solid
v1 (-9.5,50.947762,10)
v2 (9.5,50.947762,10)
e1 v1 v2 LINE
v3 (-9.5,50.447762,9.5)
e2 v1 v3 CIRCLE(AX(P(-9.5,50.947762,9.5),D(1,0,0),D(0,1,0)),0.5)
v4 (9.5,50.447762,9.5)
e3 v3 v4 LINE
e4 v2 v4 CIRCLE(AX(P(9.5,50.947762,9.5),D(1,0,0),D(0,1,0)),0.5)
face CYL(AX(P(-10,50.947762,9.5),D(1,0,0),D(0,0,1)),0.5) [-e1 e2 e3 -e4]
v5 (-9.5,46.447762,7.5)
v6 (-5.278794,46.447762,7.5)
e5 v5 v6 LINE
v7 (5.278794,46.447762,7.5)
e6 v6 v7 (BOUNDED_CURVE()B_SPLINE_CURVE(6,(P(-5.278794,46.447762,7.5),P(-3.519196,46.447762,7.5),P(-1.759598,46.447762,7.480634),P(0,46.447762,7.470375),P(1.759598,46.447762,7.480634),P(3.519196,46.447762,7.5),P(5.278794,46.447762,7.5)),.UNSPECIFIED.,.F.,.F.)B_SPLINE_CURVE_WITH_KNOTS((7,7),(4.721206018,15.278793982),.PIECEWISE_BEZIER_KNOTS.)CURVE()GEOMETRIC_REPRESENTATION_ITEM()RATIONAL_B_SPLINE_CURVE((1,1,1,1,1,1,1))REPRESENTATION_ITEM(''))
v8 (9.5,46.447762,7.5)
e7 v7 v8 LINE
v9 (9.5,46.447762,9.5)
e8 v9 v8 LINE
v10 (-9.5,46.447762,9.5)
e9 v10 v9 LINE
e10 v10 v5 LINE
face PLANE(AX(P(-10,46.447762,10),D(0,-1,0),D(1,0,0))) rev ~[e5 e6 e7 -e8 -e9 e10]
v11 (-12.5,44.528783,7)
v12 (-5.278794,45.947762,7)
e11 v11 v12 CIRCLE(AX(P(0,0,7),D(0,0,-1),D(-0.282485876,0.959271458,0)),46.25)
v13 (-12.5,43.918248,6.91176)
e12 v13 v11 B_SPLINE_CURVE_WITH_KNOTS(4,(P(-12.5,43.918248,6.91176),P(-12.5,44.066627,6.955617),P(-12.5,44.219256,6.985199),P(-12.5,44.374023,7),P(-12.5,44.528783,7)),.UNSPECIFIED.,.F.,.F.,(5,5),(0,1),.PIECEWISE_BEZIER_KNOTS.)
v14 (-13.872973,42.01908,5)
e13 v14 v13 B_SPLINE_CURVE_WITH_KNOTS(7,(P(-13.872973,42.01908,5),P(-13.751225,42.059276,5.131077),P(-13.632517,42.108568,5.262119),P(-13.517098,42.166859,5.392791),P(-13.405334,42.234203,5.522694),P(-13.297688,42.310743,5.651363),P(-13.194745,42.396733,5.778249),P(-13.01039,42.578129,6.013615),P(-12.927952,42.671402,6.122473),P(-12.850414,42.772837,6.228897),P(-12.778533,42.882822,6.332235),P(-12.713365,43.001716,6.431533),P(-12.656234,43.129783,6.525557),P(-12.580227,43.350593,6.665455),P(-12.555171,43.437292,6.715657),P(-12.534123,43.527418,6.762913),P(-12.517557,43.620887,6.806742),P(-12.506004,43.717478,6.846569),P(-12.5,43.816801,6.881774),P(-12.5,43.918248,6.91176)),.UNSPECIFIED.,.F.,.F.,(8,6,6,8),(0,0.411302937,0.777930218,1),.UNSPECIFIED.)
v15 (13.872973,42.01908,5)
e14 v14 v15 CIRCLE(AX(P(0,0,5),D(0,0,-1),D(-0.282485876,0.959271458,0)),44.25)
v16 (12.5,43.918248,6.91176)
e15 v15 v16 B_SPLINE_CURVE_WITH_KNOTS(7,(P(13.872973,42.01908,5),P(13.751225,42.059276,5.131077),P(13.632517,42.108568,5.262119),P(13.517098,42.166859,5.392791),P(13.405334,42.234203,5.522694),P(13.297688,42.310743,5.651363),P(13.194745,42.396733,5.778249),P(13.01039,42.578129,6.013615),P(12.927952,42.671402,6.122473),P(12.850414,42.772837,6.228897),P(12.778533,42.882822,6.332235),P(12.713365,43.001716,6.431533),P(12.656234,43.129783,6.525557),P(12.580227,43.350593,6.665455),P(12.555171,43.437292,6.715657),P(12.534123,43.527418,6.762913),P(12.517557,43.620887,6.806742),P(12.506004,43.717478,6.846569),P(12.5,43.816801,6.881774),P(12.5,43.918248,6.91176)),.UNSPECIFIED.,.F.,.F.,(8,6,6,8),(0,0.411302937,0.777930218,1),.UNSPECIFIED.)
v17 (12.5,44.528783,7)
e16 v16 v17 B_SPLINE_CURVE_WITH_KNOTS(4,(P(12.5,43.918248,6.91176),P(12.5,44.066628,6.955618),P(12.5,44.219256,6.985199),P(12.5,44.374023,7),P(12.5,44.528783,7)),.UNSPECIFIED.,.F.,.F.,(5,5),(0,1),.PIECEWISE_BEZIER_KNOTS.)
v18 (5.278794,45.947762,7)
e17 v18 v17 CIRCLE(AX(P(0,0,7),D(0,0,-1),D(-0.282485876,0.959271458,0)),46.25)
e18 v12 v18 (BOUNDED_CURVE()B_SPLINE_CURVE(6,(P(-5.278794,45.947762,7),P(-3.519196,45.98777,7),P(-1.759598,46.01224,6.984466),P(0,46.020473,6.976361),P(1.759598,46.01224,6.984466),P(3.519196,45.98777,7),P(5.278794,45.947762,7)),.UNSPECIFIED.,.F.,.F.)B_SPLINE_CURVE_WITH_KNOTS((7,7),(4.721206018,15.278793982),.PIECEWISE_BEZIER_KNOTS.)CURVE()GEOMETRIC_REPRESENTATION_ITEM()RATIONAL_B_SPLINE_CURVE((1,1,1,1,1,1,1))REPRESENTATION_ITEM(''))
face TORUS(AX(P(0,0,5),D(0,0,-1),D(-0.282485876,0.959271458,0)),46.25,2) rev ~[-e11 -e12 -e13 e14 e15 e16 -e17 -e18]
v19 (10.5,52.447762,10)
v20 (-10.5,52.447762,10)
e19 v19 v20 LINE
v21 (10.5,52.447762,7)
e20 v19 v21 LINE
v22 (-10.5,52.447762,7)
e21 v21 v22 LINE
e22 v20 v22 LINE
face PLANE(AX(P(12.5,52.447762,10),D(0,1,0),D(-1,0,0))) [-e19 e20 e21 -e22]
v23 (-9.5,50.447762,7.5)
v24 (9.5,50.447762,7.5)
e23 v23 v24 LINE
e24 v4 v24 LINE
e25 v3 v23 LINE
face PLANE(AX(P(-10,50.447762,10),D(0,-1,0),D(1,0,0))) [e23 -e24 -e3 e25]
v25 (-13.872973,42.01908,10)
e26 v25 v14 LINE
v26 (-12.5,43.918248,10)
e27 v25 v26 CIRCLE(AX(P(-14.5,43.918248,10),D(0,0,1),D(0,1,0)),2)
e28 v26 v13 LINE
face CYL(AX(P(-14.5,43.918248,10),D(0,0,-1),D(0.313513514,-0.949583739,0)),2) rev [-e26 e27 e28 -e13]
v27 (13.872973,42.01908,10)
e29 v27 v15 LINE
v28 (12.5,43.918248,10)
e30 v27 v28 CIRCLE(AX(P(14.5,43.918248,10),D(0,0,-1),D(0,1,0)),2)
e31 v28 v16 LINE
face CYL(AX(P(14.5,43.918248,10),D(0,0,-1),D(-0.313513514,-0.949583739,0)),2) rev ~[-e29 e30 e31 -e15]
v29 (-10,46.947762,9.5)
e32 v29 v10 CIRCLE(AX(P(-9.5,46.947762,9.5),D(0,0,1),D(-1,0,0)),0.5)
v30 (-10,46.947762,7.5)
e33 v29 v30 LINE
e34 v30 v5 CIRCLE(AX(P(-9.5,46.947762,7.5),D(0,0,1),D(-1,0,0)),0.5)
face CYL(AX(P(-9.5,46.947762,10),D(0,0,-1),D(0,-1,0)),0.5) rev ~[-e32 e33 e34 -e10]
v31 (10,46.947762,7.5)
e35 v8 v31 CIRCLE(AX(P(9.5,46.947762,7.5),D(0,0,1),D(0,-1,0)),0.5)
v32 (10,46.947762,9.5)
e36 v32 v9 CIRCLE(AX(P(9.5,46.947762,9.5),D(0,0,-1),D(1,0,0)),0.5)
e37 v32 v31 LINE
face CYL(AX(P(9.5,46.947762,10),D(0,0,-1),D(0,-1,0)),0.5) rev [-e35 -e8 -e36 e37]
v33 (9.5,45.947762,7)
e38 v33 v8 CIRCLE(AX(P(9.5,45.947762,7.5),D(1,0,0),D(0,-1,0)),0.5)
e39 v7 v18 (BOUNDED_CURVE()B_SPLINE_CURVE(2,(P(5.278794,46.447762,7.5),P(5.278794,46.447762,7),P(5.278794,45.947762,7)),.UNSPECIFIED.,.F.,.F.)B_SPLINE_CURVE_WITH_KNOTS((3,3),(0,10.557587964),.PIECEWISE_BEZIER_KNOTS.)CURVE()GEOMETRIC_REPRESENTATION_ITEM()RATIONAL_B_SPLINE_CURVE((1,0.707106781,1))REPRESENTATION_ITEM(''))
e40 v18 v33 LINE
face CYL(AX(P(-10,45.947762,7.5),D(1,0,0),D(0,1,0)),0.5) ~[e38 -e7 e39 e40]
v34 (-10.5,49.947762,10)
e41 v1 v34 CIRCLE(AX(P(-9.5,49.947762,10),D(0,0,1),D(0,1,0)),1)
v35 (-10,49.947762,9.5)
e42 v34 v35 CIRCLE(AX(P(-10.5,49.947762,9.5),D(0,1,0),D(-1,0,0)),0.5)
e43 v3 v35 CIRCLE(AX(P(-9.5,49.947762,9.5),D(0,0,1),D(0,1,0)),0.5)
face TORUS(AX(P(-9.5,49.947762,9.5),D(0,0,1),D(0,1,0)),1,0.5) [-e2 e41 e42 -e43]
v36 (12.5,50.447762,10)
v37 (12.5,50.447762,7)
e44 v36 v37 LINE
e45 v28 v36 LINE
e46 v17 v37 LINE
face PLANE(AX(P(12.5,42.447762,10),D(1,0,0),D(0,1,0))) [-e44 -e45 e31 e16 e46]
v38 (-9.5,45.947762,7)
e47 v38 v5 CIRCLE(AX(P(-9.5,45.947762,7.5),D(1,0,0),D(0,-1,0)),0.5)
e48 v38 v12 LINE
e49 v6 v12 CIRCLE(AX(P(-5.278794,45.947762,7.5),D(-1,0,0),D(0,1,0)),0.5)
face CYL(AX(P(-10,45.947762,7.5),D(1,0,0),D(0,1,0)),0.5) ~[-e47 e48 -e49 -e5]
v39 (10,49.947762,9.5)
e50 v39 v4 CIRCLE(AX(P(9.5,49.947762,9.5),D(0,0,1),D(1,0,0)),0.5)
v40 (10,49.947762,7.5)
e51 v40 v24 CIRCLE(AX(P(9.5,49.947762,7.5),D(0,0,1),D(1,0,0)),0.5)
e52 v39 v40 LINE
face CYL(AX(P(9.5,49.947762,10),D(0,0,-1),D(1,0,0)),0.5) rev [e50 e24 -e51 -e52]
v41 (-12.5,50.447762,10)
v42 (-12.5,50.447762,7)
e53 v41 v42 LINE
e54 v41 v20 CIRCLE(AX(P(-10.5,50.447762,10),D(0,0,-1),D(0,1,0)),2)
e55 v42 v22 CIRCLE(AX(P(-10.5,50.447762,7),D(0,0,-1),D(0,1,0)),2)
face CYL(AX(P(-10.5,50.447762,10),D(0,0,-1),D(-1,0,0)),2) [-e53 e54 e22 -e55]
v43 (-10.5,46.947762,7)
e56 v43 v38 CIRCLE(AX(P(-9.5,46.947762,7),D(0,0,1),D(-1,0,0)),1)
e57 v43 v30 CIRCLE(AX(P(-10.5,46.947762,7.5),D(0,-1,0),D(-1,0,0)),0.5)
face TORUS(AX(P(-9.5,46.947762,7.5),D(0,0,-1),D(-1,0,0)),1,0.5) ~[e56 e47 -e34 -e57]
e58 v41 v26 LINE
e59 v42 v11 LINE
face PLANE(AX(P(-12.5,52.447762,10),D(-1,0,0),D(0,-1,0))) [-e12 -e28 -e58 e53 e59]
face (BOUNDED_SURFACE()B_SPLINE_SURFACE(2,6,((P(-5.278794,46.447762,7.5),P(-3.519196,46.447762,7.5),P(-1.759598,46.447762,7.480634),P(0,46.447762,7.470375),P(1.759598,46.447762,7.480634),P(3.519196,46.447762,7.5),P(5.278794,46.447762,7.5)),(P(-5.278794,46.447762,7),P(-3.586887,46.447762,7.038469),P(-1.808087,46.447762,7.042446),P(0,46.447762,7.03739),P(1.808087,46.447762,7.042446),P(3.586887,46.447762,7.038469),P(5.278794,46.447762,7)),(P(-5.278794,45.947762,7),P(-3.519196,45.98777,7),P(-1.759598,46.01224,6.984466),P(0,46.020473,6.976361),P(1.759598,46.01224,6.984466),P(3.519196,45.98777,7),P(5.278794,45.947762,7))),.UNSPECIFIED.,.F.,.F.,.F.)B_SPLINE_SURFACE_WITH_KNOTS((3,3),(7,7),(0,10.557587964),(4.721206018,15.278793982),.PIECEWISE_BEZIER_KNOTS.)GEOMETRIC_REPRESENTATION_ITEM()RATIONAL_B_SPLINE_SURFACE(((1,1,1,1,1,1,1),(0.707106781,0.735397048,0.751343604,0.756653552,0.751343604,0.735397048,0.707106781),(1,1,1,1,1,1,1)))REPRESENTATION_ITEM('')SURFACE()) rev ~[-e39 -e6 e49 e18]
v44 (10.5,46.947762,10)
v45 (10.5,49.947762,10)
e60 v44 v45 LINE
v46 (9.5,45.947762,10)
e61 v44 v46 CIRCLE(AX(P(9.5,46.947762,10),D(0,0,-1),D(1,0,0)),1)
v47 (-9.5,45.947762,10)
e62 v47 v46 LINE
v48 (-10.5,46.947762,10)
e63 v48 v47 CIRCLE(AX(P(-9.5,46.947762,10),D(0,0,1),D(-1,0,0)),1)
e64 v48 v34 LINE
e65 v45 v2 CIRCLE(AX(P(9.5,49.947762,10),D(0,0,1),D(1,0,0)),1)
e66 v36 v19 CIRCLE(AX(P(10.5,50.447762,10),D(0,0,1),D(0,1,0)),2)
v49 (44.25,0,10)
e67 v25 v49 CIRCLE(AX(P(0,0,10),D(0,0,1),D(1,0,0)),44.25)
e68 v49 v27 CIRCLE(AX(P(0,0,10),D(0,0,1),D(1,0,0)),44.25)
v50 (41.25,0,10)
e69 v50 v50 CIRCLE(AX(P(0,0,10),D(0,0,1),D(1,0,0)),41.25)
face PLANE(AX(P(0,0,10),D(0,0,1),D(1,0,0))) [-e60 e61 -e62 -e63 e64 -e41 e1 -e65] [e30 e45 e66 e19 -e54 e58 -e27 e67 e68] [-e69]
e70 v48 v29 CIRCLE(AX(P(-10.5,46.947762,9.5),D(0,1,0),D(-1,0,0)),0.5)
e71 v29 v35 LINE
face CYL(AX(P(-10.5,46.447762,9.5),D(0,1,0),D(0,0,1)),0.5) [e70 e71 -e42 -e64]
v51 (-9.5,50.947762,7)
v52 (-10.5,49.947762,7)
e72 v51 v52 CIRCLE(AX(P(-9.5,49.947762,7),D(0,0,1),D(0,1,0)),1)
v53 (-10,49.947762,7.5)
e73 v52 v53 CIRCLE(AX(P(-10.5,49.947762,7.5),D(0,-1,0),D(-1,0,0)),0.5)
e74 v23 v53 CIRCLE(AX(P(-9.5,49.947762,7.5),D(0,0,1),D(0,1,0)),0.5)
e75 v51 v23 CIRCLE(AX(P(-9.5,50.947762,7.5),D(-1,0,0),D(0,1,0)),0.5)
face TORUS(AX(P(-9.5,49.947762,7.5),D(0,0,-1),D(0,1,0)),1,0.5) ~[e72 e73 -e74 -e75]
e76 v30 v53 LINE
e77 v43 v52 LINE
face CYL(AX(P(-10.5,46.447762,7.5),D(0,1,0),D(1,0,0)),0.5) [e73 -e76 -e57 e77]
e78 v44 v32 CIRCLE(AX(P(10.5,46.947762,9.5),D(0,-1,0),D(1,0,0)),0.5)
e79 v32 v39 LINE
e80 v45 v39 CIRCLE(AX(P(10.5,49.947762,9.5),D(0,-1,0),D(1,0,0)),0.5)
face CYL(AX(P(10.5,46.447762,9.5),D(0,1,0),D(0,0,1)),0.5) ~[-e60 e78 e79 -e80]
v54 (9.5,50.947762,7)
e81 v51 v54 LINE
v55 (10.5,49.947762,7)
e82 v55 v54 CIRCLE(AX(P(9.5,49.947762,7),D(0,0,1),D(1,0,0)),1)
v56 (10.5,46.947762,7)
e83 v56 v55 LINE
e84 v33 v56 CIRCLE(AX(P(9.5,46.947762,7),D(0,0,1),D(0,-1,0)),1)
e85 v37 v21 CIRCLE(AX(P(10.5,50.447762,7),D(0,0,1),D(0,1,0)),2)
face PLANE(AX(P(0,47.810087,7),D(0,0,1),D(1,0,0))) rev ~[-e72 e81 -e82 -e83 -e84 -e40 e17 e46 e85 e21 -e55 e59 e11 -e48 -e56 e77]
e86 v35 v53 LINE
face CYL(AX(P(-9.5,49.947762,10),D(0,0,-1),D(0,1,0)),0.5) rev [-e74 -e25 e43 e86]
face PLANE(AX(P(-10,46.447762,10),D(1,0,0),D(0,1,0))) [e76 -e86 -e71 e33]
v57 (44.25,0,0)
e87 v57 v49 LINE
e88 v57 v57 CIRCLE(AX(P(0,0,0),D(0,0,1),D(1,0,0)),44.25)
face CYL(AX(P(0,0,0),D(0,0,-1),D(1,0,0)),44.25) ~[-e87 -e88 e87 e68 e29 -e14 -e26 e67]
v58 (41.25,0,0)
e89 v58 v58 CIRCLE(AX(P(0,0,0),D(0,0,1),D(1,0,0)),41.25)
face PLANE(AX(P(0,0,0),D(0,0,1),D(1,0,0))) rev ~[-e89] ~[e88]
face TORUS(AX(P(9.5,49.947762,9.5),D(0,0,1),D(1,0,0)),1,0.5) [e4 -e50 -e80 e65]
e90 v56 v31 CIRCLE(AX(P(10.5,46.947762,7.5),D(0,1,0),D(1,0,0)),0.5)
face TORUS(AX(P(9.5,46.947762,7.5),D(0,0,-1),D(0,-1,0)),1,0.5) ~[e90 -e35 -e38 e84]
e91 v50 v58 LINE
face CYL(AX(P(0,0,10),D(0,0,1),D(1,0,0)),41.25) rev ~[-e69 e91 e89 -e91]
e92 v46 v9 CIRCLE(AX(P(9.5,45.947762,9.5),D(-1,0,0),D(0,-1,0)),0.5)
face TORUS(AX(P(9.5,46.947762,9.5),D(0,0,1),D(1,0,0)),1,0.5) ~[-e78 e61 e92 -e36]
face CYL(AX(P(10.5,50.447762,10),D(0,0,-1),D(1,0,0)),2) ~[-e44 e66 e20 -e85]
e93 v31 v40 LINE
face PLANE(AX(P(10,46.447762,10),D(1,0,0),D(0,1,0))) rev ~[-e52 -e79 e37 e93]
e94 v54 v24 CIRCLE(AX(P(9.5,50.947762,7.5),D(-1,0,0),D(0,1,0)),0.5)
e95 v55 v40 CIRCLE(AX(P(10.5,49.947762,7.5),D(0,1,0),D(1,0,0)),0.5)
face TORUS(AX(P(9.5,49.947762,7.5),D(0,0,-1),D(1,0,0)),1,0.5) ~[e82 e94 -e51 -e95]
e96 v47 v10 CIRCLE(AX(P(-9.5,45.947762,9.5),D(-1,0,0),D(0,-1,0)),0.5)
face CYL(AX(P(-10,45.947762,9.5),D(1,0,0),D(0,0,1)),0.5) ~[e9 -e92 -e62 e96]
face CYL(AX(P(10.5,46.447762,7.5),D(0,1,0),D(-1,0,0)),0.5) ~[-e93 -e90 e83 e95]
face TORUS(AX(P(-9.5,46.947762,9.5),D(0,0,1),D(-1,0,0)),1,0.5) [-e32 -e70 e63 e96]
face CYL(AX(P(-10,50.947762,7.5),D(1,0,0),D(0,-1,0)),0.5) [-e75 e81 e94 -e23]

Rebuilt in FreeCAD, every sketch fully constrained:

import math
import FreeCAD as App
import Part
import Sketcher

V = App.Vector
Q = App.Units.Quantity


def edges_at(feature, points):
    """Names of the edges that pass closest to the given points."""
    edges = feature.Shape.Edges
    near = lambda p: min(range(len(edges)), key=lambda i: edges[i].distToShape(Part.Vertex(*p))[0])
    return sorted({f"Edge{near(p) + 1}" for p in points})

doc = App.newDocument("Part")
body = doc.addObject("PartDesign::Body", "Body")

sketch1 = body.newObject("Sketcher::SketchObject", "Sketch")
sketch1.AttachmentSupport = (doc.getObject("XY_Plane"), [""])
sketch1.MapMode = "FlatFace"
sketch1.addGeometry(Part.Circle(V(0, 0, 0), V(0, 0, 1), 44), False)
sketch1.addConstraint([
    Sketcher.Constraint("Coincident", 0, 3, -1, 1),
    Sketcher.Constraint("Diameter", 0, Q("88.5 mm")),
])
pad1 = body.newObject("PartDesign::Pad", "Pad")
pad1.Profile = sketch1
pad1.Length = 10

sketch2 = body.newObject("Sketcher::SketchObject", "Sketch001")
sketch2.AttachmentSupport = (doc.getObject("XY_Plane"), [""])
sketch2.MapMode = "FlatFace"
sketch2.AttachmentOffset = App.Placement(V(0, 0, 10), App.Rotation())
sketch2.addGeometry(Part.Circle(V(0, 0, 0), V(0, 0, 1), 41), False)
sketch2.addConstraint([
    Sketcher.Constraint("Coincident", 0, 3, -1, 1),
    Sketcher.Constraint("Diameter", 0, Q("82.5 mm")),
])
pocket1 = body.newObject("PartDesign::Pocket", "Pocket")
pocket1.Profile = sketch2
pocket1.Length = 15

sketch3 = body.newObject("Sketcher::SketchObject", "Sketch002")
sketch3.AttachmentSupport = (doc.getObject("XY_Plane"), [""])
sketch3.MapMode = "FlatFace"
sketch3.AttachmentOffset = App.Placement(V(0, 0, 10), App.Rotation())
sketch3.addGeometry([
    Part.LineSegment(V(12, 52, 0), V(-12, 52, 0)),
    Part.LineSegment(V(-12, 52, 0), V(-12, 42, 0)),
    Part.ArcOfCircle(Part.Circle(V(0, 0, 0), V(0, 0, 1), 44), math.radians(74), math.radians(106)),
    Part.LineSegment(V(12, 42, 0), V(12, 52, 0)),
], False)
sketch3.addConstraint([
    Sketcher.Constraint("Coincident", 0, 2, 1, 1),
    Sketcher.Constraint("Coincident", 1, 2, 2, 2),
    Sketcher.Constraint("Coincident", 2, 1, 3, 1),
    Sketcher.Constraint("Coincident", 3, 2, 0, 1),
    Sketcher.Constraint("Horizontal", 0),
    Sketcher.Constraint("Vertical", 1),
    Sketcher.Constraint("Vertical", 3),
    Sketcher.Constraint("Coincident", 2, 3, -1, 1),
    Sketcher.Constraint("Horizontal", 1, 2, 2, 1),
    Sketcher.Constraint("DistanceX", 0, 2, 0, 1, Q("25 mm")),
    Sketcher.Constraint("DistanceY", 1, 2, 1, 1, Q("10 mm")),
    Sketcher.Constraint("Radius", 2, Q("44.25 mm")),
])
pad2 = body.newObject("PartDesign::Pad", "Pad001")
pad2.Profile = sketch3
pad2.Length = 3
pad2.Reversed = True

sketch4 = body.newObject("Sketcher::SketchObject", "Sketch003")
sketch4.AttachmentSupport = (doc.getObject("XY_Plane"), [""])
sketch4.MapMode = "FlatFace"
sketch4.AttachmentOffset = App.Placement(V(0, 0, 10), App.Rotation())
sketch4.addGeometry([
    Part.LineSegment(V(-10, 50.4, 0), V(-10, 46.4, 0)),
    Part.LineSegment(V(-10, 46.4, 0), V(10, 46.4, 0)),
    Part.LineSegment(V(10, 46.4, 0), V(10, 50.4, 0)),
    Part.LineSegment(V(10, 50.4, 0), V(-10, 50.4, 0)),
], False)
sketch4.addConstraint([
    Sketcher.Constraint("Coincident", 0, 2, 1, 1),
    Sketcher.Constraint("Coincident", 1, 2, 2, 1),
    Sketcher.Constraint("Coincident", 2, 2, 3, 1),
    Sketcher.Constraint("Coincident", 3, 2, 0, 1),
    Sketcher.Constraint("Vertical", 0),
    Sketcher.Constraint("Horizontal", 1),
    Sketcher.Constraint("Vertical", 2),
    Sketcher.Constraint("Horizontal", 3),
    Sketcher.Constraint("DistanceX", 1, 1, 1, 2, Q("20 mm")),
    Sketcher.Constraint("DistanceY", 0, 2, 0, 1, Q("4 mm")),
    Sketcher.Constraint("DistanceX", 0, 2, -1, 1, Q("10 mm")),
    Sketcher.Constraint("DistanceY", -1, 1, 0, 2, Q("46.447762 mm")),
])
pocket2 = body.newObject("PartDesign::Pocket", "Pocket001")
pocket2.Profile = sketch4
pocket2.Length = 25
doc.recompute()

fillet = body.newObject("PartDesign::Fillet", "Fillet")
fillet.Base = (pocket2, edges_at(pocket2, [
    (0, 44.25, 7),
    (12.5, 42.448, 8.5),
    (12.5, 52.448, 8.5),
    (-12.5, 42.448, 8.5),
    (-12.5, 52.448, 8.5),
]))
fillet.Radius = 2
doc.recompute()

fillet2 = body.newObject("PartDesign::Fillet", "Fillet001")
fillet2.Base = (fillet, edges_at(fillet, [
    (0, 46.448, 10),
    (10, 46.448, 8.5),
    (0, 46.448, 7),
    (-10, 46.448, 8.5),
    (-10, 48.448, 10),
    (-10, 48.448, 7),
    (-10, 50.448, 8.5),
    (0, 50.448, 10),
    (0, 50.448, 7),
    (10, 50.448, 8.5),
    (10, 48.448, 10),
    (10, 48.448, 7),
]))
fillet2.Radius = 0.5

doc.recompute()
